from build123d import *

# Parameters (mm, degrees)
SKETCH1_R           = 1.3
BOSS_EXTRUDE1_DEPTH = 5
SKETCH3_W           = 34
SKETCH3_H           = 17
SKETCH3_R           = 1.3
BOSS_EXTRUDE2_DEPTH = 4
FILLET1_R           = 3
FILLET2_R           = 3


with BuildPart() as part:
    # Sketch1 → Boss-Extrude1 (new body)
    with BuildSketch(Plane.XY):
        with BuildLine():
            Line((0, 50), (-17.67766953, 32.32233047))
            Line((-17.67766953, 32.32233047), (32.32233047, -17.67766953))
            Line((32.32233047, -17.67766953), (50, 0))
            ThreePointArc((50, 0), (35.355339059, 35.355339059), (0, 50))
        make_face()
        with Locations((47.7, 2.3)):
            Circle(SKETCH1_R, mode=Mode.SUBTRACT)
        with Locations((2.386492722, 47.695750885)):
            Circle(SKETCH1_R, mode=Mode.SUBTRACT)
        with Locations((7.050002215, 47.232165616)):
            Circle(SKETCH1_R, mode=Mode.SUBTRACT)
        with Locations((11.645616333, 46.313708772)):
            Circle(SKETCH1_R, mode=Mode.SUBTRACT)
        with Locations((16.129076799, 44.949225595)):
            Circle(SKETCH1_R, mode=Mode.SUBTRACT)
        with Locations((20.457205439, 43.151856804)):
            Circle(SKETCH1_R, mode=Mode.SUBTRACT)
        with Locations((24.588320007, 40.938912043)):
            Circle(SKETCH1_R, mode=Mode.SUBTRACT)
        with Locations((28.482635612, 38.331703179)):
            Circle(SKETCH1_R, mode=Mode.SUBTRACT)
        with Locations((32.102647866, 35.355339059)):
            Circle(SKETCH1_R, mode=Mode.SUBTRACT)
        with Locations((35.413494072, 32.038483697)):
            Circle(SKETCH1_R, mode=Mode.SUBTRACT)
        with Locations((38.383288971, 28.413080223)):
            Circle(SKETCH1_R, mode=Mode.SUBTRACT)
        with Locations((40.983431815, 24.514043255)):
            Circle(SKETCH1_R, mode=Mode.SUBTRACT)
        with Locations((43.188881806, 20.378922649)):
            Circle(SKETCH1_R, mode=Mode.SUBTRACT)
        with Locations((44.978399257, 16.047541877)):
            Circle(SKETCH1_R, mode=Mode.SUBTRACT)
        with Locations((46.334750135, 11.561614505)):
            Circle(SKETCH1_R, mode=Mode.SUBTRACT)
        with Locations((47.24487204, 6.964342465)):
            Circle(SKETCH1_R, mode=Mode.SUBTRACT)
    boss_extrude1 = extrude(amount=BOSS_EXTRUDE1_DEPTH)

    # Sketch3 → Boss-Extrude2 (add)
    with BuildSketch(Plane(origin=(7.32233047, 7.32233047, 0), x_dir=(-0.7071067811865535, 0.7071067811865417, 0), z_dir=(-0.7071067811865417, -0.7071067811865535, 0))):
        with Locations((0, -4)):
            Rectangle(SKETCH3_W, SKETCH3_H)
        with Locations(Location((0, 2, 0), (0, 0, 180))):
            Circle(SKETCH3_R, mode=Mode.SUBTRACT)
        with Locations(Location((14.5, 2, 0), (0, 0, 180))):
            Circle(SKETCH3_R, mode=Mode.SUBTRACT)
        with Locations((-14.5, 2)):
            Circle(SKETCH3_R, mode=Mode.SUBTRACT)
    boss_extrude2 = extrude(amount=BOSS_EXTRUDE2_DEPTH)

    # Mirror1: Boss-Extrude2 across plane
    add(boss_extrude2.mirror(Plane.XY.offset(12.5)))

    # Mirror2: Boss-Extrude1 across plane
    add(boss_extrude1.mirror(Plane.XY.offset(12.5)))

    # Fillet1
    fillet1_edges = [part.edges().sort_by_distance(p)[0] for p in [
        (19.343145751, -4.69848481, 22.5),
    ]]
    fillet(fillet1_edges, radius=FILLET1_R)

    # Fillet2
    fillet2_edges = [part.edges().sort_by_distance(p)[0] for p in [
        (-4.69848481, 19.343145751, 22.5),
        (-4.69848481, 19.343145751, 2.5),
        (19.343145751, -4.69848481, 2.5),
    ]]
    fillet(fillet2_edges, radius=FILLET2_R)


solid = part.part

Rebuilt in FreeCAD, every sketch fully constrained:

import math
import FreeCAD as App
import Part
import Sketcher
Q = App.Units.Quantity


def edges_at(feature, points):
    """Names of the edges that pass closest to the given points."""
    edges = feature.Shape.Edges
    near = lambda p: min(range(len(edges)), key=lambda i: edges[i].distToShape(Part.Vertex(*p))[0])
    return sorted({f"Edge{near(p) + 1}" for p in points})


def add_polygon(sketch, points):
    """Adds a closed chain of lines whose ends are joined by coincident constraints."""
    first, n = sketch.GeometryCount, len(points)
    for a, b in zip(points, points[1:] + points[:1]):
        sketch.addGeometry(Part.LineSegment(App.Vector(*a, 0), App.Vector(*b, 0)), False)
    for i in range(n):
        sketch.addConstraint(Sketcher.Constraint("Coincident", first + i, 2, first + (i + 1) % n, 1))

doc = App.newDocument("Part")
params = doc.addObject("Spreadsheet::Sheet", "Params")
for row, (alias, value) in enumerate([
    ("sketch1_radius", "50 mm"),
    ("sketch1_diameter", "2.6 mm"),
    ("sketch1_length", "25 mm"),
    ("pad1_length", "5 mm"),
    ("sketch2_diameter", "2.6 mm"),
    ("sketch2_width", "34 mm"),
    ("sketch2_height", "17 mm"),
    ("pad2_length", "4 mm"),
    ("fillet_radius", "3 mm"),
    ("fillet2_radius", "3 mm"),
], start=1):
    params.set(f"A{row}", alias)
    params.set(f"B{row}", "=" + value)
    params.setAlias(f"B{row}", alias)

body = doc.addObject("PartDesign::Body", "Body")

sketch1 = body.newObject("Sketcher::SketchObject", "Sketch")
sketch1.AttachmentSupport = (doc.getObject("XY_Plane"), [""])
sketch1.MapMode = "FlatFace"
sketch1.addGeometry([
    Part.LineSegment(App.Vector(0, 50, 0), App.Vector(-17.67767, 32.32233, 0)),
    Part.LineSegment(App.Vector(-17.67767, 32.32233, 0), App.Vector(32.32233, -17.67767, 0)),
    Part.LineSegment(App.Vector(32.32233, -17.67767, 0), App.Vector(50, 0, 0)),
    Part.ArcOfCircle(Part.Circle(App.Vector(0, 0, 0), App.Vector(0, 0, 1), 50), math.radians(0), math.radians(90)),
    Part.Circle(App.Vector(47.7, 2.3, 0), App.Vector(0, 0, 1), 1.3),
    Part.Circle(App.Vector(47.244872, 6.964342, 0), App.Vector(0, 0, 1), 1.3),
    Part.Circle(App.Vector(46.33475, 11.561615, 0), App.Vector(0, 0, 1), 1.3),
    Part.Circle(App.Vector(44.978399, 16.047542, 0), App.Vector(0, 0, 1), 1.3),
    Part.Circle(App.Vector(40.983432, 24.514043, 0), App.Vector(0, 0, 1), 1.3),
    Part.Circle(App.Vector(43.188882, 20.378923, 0), App.Vector(0, 0, 1), 1.3),
    Part.Circle(App.Vector(2.386493, 47.695751, 0), App.Vector(0, 0, 1), 1.3),
    Part.Circle(App.Vector(7.050002, 47.232166, 0), App.Vector(0, 0, 1), 1.3),
    Part.Circle(App.Vector(11.645616, 46.313709, 0), App.Vector(0, 0, 1), 1.3),
    Part.Circle(App.Vector(24.58832, 40.938912, 0), App.Vector(0, 0, 1), 1.3),
    Part.Circle(App.Vector(16.129077, 44.949226, 0), App.Vector(0, 0, 1), 1.3),
    Part.Circle(App.Vector(20.457205, 43.151857, 0), App.Vector(0, 0, 1), 1.3),
    Part.Circle(App.Vector(35.413494, 32.038484, 0), App.Vector(0, 0, 1), 1.3),
    Part.Circle(App.Vector(32.102648, 35.355339, 0), App.Vector(0, 0, 1), 1.3),
    Part.Circle(App.Vector(38.383289, 28.41308, 0), App.Vector(0, 0, 1), 1.3),
    Part.Circle(App.Vector(28.482636, 38.331703, 0), App.Vector(0, 0, 1), 1.3),
], False)
sketch1.addConstraint([
    Sketcher.Constraint("Coincident", 0, 2, 1, 1),
    Sketcher.Constraint("Coincident", 1, 2, 2, 1),
    Sketcher.Constraint("Coincident", 2, 2, 3, 1),
    Sketcher.Constraint("Coincident", 3, 2, 0, 1),
    Sketcher.Constraint("Coincident", 3, 3, -1, 1),
    Sketcher.Constraint("Equal", 4, 5),
    Sketcher.Constraint("Equal", 5, 6),
    Sketcher.Constraint("Equal", 6, 7),
    Sketcher.Constraint("Equal", 7, 8),
    Sketcher.Constraint("Equal", 8, 9),
    Sketcher.Constraint("Equal", 9, 10),
    Sketcher.Constraint("Equal", 10, 11),
    Sketcher.Constraint("Equal", 11, 12),
    Sketcher.Constraint("Equal", 12, 13),
    Sketcher.Constraint("Equal", 13, 14),
    Sketcher.Constraint("Equal", 14, 15),
    Sketcher.Constraint("Equal", 15, 16),
    Sketcher.Constraint("Equal", 16, 17),
    Sketcher.Constraint("Equal", 17, 18),
    Sketcher.Constraint("Equal", 18, 19),
    Sketcher.Constraint("PointOnObject", 2, 2, -1),
    Sketcher.Constraint("PointOnObject", 3, 2, -2),
    Sketcher.Constraint("Perpendicular", 0, 1),
    Sketcher.Constraint("Perpendicular", 1, 2),
    Sketcher.Constraint("Equal", 0, 2),
    Sketcher.Constraint("Radius", 3, Q("50 mm")),
    Sketcher.Constraint("Diameter", 4, Q("2.6 mm")),
    Sketcher.Constraint("Distance", 0, Q("25 mm")),
    Sketcher.Constraint("DistanceX", -1, 1, 4, 3, Q("47.7 mm")),
    Sketcher.Constraint("DistanceY", -1, 1, 4, 3, Q("2.3 mm")),
    Sketcher.Constraint("DistanceX", -1, 1, 7, 3, Q("44.978399 mm")),
    Sketcher.Constraint("DistanceY", 5, 3, 7, 3, Q("9.083199 mm")),
    Sketcher.Constraint("DistanceY", 7, 3, 8, 3, Q("8.466501 mm")),
    Sketcher.Constraint("DistanceX", -1, 1, 6, 3, Q("46.33475 mm")),
    Sketcher.Constraint("DistanceY", -1, 1, 7, 3, Q("16.047542 mm")),
    Sketcher.Constraint("DistanceX", -1, 1, 8, 3, Q("40.983432 mm")),
    Sketcher.Constraint("DistanceX", -1, 1, 9, 3, Q("43.188882 mm")),
    Sketcher.Constraint("DistanceY", -1, 1, 10, 3, Q("47.695751 mm")),
    Sketcher.Constraint("DistanceY", -1, 1, 12, 3, Q("46.313709 mm")),
    Sketcher.Constraint("DistanceX", -1, 1, 13, 3, Q("24.58832 mm")),
    Sketcher.Constraint("DistanceY", -1, 1, 17, 3, Q("35.355339 mm")),
    Sketcher.Constraint("DistanceX", -1, 1, 18, 3, Q("38.383289 mm")),
    Sketcher.Constraint("DistanceY", -1, 1, 18, 3, Q("28.41308 mm")),
    Sketcher.Constraint("DistanceX", 6, 3, 5, 3, Q("0.910122 mm")),
    Sketcher.Constraint("DistanceY", 6, 3, 8, 3, Q("12.952429 mm")),
    Sketcher.Constraint("DistanceY", 9, 3, 8, 3, Q("4.135121 mm")),
    Sketcher.Constraint("DistanceX", 10, 3, 8, 3, Q("38.596939 mm")),
    Sketcher.Constraint("DistanceX", 10, 3, 11, 3, Q("4.663509 mm")),
    Sketcher.Constraint("DistanceY", 8, 3, 13, 3, Q("16.424869 mm")),
    Sketcher.Constraint("DistanceX", 12, 3, 14, 3, Q("4.48346 mm")),
    Sketcher.Constraint("DistanceY", 14, 3, 11, 3, Q("2.28294 mm")),
    Sketcher.Constraint("DistanceX", 14, 3, 15, 3, Q("4.328129 mm")),
    Sketcher.Constraint("DistanceY", 15, 3, 14, 3, Q("1.797369 mm")),
    Sketcher.Constraint("DistanceY", 15, 3, 12, 3, Q("3.161852 mm")),
    Sketcher.Constraint("DistanceY", 8, 3, 16, 3, Q("7.52444 mm")),
    Sketcher.Constraint("DistanceX", 15, 3, 16, 3, Q("14.956289 mm")),
    Sketcher.Constraint("DistanceX", 17, 3, 18, 3, Q("6.280641 mm")),
    Sketcher.Constraint("DistanceY", 19, 3, 13, 3, Q("2.607209 mm")),
    Sketcher.Constraint("DistanceX", 15, 3, 19, 3, Q("8.02543 mm")),
    Sketcher.Constraint("DistanceX", -1, 1, 12, 3, Q("11.645616 mm")),
])
sketch1.setExpression("Constraints[25]", "Params.sketch1_radius")
sketch1.setExpression("Constraints[26]", "Params.sketch1_diameter")
sketch1.setExpression("Constraints[27]", "Params.sketch1_length")
pad1 = body.newObject("PartDesign::Pad", "Pad")
pad1.Profile = sketch1
pad1.setExpression("Length", "Params.pad1_length")

sketch2 = body.newObject("Sketcher::SketchObject", "Sketch001")
sketch2.Placement = App.Placement(App.Vector(7.32233, 7.32233, 0), App.Rotation(App.Vector(-0.707106781, 0.707106781, 0), App.Vector(0, 0, -0.999999999), App.Vector(-0.707106781, -0.707106781, 0), "ZXY"))
add_polygon(sketch2, [(-17, 4.5), (-17, -12.5), (17, -12.5), (17, 4.5)])
sketch2.addGeometry(Part.Circle(App.Vector(-14.5, 2, 0), App.Vector(0, 0, 1), 1.3), False)
sketch2.addGeometry(Part.Circle(App.Vector(0, 2, 0), App.Vector(0, 0, 1), 1.3), False)
sketch2.addGeometry(Part.Circle(App.Vector(14.5, 2, 0), App.Vector(0, 0, 1), 1.3), False)
sketch2.addConstraint([
    Sketcher.Constraint("Vertical", 0),
    Sketcher.Constraint("Horizontal", 1),
    Sketcher.Constraint("Vertical", 2),
    Sketcher.Constraint("Horizontal", 3),
    Sketcher.Constraint("Equal", 4, 5),
    Sketcher.Constraint("Equal", 5, 6),
    Sketcher.Constraint("Symmetric", 4, 3, 6, 3, -2),
    Sketcher.Constraint("PointOnObject", 5, 3, -2),
    Sketcher.Constraint("Horizontal", 4, 3, 5, 3),
    Sketcher.Constraint("Diameter", 4, Q("2.6 mm")),
    Sketcher.Constraint("DistanceX", 1, 1, 1, 2, Q("34 mm")),
    Sketcher.Constraint("DistanceY", 0, 2, 0, 1, Q("17 mm")),
    Sketcher.Constraint("DistanceY", -1, 1, 4, 3, Q("2 mm")),
    Sketcher.Constraint("DistanceX", 0, 2, -1, 1, Q("17 mm")),
    Sketcher.Constraint("DistanceX", 4, 3, 6, 3, Q("29 mm")),
    Sketcher.Constraint("DistanceY", 0, 2, -1, 1, Q("12.5 mm")),
])
sketch2.setExpression("Constraints[13]", "Params.sketch2_diameter")
sketch2.setExpression("Constraints[14]", "Params.sketch2_width")
sketch2.setExpression("Constraints[15]", "Params.sketch2_height")
pad2 = body.newObject("PartDesign::Pad", "Pad001")
pad2.Profile = sketch2
pad2.setExpression("Length", "Params.pad2_length")
doc.recompute()

datumplane = body.newObject("PartDesign::Plane", "DatumPlane")
datumplane.AttachmentSupport = (doc.getObject("XY_Plane"), [""])
datumplane.MapMode = "FlatFace"
datumplane.AttachmentOffset = App.Placement(App.Vector(0, 0, 12.5), App.Rotation())
mirrored = body.newObject("PartDesign::Mirrored", "Mirrored")
mirrored.Originals = [pad2]
mirrored.MirrorPlane = (datumplane, [""])
body.Tip = mirrored
doc.recompute()

datumplane2 = body.newObject("PartDesign::Plane", "DatumPlane001")
datumplane2.AttachmentSupport = (doc.getObject("XY_Plane"), [""])
datumplane2.MapMode = "FlatFace"
datumplane2.AttachmentOffset = App.Placement(App.Vector(0, 0, 12.5), App.Rotation())
mirrored2 = body.newObject("PartDesign::Mirrored", "Mirrored001")
mirrored2.Originals = [pad1]
mirrored2.MirrorPlane = (datumplane2, [""])
body.Tip = mirrored2
doc.recompute()

fillet = body.newObject("PartDesign::Fillet", "Fillet")
fillet.Base = (mirrored2, edges_at(mirrored2, [(19.343, -4.698, 22.5)]))
fillet.setExpression("Radius", "Params.fillet_radius")
doc.recompute()

fillet2 = body.newObject("PartDesign::Fillet", "Fillet001")
fillet2.Base = (fillet, edges_at(fillet, [(-4.698, 19.343, 22.5), (-4.698, 19.343, 2.5), (19.343, -4.698, 2.5)]))
fillet2.setExpression("Radius", "Params.fillet2_radius")

doc.recompute()
